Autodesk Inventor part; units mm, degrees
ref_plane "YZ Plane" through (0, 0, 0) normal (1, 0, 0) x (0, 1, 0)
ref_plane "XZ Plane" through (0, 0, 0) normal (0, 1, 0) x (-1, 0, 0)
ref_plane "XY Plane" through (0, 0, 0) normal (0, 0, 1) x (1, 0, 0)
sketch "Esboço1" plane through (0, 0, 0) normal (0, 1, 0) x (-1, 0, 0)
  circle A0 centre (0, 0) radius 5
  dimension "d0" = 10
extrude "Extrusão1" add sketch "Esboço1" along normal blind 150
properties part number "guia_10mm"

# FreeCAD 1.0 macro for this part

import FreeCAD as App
import Part
import Sketcher

V = App.Vector
Q = App.Units.Quantity

doc = App.newDocument("Part")
params = doc.addObject("Spreadsheet::Sheet", "Params")
for row, (alias, value) in enumerate([
    ("sketch1_diameter", "10 mm"),
    ("pad1_length", "150 mm"),
], start=1):
    params.set(f"A{row}", alias)
    params.set(f"B{row}", "=" + value)
    params.setAlias(f"B{row}", alias)

body = doc.addObject("PartDesign::Body", "Body")

sketch1 = body.newObject("Sketcher::SketchObject", "Sketch")
sketch1.AttachmentSupport = (doc.getObject("XZ_Plane"), [""])
sketch1.MapMode = "FlatFace"
sketch1.addGeometry(Part.Circle(V(0, 0, 0), V(0, 0, 1), 5), False)
sketch1.addConstraint(Sketcher.Constraint("Coincident", 0, 3, -1, 1))
sketch1.addConstraint(Sketcher.Constraint("Diameter", 0, Q("10 mm")))
sketch1.setExpression("Constraints[1]", "Params.sketch1_diameter")
pad1 = body.newObject("PartDesign::Pad", "Pad")
pad1.Profile = sketch1
pad1.setExpression("Length", "Params.pad1_length")
pad1.Reversed = True

doc.recompute()
